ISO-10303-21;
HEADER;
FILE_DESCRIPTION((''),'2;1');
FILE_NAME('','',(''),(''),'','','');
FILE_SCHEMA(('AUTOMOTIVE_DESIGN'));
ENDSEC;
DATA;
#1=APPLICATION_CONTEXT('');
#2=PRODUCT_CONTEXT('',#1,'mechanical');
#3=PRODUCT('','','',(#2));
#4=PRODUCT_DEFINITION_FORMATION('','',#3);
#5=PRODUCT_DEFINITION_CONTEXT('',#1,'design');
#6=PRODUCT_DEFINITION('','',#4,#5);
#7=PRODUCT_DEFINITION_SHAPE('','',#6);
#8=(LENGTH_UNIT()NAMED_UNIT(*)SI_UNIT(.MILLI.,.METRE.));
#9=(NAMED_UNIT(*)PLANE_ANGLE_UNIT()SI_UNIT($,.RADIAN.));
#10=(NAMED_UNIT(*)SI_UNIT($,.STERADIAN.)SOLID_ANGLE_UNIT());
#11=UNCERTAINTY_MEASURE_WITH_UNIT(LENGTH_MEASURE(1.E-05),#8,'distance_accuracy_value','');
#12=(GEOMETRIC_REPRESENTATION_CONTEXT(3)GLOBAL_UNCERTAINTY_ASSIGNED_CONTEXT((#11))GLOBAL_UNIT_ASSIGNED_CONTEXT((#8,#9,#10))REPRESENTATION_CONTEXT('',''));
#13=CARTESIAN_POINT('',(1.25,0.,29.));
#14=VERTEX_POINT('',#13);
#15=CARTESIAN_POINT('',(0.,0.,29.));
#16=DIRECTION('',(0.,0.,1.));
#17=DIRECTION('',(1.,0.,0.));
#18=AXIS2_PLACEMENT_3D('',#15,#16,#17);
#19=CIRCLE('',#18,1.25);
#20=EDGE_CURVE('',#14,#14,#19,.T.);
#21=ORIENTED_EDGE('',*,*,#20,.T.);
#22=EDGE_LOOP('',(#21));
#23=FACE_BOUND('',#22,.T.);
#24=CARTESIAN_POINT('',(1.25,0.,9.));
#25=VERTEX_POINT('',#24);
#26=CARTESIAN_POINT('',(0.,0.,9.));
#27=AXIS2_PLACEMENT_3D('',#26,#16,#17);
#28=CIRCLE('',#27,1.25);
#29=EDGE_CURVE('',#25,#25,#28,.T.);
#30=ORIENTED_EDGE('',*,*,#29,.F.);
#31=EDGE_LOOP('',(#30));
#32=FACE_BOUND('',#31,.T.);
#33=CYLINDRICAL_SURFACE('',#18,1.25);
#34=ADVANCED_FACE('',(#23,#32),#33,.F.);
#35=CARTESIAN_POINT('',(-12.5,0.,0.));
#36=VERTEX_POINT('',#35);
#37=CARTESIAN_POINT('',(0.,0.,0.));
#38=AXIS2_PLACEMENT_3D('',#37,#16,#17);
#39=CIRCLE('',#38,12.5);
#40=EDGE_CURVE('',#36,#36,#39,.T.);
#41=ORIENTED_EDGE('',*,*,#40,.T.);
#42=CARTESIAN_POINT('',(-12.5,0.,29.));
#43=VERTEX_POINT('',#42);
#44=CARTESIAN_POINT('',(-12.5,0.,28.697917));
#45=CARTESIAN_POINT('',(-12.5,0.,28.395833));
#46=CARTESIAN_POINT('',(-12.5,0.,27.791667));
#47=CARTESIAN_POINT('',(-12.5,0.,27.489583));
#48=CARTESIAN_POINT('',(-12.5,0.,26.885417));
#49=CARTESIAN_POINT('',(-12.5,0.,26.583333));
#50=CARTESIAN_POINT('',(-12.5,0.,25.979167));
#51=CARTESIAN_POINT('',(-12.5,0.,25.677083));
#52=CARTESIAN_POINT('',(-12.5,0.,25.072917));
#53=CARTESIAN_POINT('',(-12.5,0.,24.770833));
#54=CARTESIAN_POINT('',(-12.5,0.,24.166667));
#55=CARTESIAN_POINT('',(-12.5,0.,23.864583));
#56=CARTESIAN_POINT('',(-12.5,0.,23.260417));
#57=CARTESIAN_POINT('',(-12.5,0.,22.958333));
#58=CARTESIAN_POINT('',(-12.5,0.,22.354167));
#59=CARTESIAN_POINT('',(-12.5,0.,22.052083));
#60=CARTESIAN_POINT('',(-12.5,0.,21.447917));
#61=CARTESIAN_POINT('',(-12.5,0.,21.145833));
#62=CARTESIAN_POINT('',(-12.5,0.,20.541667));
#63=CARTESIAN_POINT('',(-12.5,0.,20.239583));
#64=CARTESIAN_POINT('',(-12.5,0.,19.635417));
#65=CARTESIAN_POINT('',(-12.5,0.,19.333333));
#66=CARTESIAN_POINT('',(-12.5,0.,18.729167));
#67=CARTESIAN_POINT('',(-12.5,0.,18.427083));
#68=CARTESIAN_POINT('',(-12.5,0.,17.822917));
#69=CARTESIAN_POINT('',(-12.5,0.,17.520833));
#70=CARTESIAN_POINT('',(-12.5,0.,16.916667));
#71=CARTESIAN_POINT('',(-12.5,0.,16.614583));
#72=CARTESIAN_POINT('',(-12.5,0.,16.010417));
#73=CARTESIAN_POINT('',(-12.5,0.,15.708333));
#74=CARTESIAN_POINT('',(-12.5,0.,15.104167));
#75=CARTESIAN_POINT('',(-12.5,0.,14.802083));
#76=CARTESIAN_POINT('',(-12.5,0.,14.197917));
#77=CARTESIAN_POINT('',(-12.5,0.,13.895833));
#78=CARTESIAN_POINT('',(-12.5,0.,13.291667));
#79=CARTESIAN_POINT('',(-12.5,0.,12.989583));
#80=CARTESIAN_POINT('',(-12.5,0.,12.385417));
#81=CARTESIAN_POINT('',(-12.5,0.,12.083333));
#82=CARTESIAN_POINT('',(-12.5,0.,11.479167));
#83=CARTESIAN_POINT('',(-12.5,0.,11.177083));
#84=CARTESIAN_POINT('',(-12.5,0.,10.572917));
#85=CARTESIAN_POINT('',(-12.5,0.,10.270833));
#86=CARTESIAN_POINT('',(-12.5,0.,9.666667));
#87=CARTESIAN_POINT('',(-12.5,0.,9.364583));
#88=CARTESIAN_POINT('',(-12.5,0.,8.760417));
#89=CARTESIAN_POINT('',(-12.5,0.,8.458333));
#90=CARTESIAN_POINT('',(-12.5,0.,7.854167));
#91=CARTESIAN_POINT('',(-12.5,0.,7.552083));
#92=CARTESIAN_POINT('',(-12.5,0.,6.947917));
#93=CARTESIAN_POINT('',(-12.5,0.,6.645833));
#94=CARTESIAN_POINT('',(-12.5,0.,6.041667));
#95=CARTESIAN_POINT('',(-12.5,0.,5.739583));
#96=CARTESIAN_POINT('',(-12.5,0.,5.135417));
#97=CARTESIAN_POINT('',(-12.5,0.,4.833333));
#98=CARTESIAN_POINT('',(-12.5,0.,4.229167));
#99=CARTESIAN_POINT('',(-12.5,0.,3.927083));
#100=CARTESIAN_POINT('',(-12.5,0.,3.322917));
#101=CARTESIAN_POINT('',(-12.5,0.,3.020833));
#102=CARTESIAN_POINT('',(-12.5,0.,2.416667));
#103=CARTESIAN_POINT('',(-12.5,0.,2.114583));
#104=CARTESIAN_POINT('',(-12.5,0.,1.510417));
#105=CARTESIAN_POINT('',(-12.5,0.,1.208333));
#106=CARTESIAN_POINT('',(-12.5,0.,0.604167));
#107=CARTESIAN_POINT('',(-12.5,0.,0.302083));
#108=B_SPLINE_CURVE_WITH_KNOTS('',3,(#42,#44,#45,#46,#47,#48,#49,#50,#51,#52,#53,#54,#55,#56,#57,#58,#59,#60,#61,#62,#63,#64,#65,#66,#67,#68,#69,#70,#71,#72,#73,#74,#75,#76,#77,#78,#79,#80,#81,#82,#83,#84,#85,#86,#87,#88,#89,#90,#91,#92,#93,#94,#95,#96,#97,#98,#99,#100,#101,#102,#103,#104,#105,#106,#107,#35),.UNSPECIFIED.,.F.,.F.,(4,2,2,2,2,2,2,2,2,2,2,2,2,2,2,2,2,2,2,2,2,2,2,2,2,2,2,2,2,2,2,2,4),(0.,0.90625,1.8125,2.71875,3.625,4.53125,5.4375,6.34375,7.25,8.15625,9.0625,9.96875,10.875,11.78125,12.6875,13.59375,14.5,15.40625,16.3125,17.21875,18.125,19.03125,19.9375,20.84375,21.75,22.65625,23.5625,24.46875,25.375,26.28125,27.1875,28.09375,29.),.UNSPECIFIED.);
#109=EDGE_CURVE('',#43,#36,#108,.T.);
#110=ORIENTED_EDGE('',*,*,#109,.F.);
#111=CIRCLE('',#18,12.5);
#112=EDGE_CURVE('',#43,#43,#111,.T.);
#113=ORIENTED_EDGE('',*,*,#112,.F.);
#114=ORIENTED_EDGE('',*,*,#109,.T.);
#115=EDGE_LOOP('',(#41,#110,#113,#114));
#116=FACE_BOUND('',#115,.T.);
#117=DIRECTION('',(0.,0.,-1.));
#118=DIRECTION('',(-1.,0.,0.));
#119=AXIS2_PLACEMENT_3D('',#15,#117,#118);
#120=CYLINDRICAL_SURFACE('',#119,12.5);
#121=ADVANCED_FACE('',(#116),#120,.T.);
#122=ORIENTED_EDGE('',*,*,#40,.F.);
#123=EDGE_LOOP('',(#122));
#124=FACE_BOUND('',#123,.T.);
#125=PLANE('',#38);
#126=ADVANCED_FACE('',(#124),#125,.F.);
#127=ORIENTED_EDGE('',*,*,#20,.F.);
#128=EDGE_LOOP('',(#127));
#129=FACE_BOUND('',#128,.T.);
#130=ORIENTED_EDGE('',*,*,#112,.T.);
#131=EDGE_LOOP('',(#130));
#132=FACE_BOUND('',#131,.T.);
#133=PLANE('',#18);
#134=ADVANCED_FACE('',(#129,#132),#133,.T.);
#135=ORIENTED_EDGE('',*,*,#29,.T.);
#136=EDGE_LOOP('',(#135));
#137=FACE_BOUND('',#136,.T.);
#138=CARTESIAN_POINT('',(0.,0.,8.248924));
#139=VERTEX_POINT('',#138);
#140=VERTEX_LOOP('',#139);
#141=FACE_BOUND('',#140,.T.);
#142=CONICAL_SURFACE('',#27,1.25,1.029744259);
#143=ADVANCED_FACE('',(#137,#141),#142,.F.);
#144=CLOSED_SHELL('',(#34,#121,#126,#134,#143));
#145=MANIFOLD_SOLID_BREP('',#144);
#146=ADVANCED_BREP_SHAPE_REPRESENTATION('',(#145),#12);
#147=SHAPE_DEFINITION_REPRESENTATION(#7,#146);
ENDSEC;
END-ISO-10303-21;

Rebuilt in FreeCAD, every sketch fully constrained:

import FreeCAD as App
import Part
import Sketcher

V = App.Vector
Q = App.Units.Quantity

doc = App.newDocument("Part")
body = doc.addObject("PartDesign::Body", "Body")

# Sketch on XY plane
sketch1 = doc.addObject("Sketcher::SketchObject", "Sketch")
body.addObject(sketch1)
sketch1.AttachmentSupport = (doc.XY_Plane, [""])
sketch1.MapMode = "FlatFace"
sketch1.addGeometry(Part.Circle(V(0, 0, 0), V(0, 0, 1), 12), False)
sketch1.addConstraint([
    Sketcher.Constraint("Coincident", 0, 3, -1, 1),
    Sketcher.Constraint("Diameter", 0, Q("25 mm")),
])
pad1 = doc.addObject("PartDesign::Pad", "Pad")
body.addObject(pad1)
pad1.Profile = sketch1
pad1.Length = 29

# Sketch on XY plane
sketch2 = doc.addObject("Sketcher::SketchObject", "Sketch001")
body.addObject(sketch2)
sketch2.AttachmentSupport = (doc.XY_Plane, [""])
sketch2.MapMode = "FlatFace"
sketch2.AttachmentOffset = App.Placement(V(0, 0, 29), App.Rotation())
sketch2.addGeometry(Part.Circle(V(0, 0, 0), V(0, 0, 1), 1.2), False)
sketch2.addConstraint([
    Sketcher.Constraint("Coincident", 0, 3, -1, 1),
    Sketcher.Constraint("Diameter", 0, Q("2.5 mm")),
])
doc.recompute()
hole = doc.addObject("PartDesign::Hole", "Hole")
body.addObject(hole)
hole.Profile = sketch2
hole.ThreadType = "None"
hole.Diameter = 2.5
hole.DepthType = "Dimension"
hole.Depth = 20
hole.DrillPoint = "Angled"
hole.DrillPointAngle = 118

doc.recompute()
